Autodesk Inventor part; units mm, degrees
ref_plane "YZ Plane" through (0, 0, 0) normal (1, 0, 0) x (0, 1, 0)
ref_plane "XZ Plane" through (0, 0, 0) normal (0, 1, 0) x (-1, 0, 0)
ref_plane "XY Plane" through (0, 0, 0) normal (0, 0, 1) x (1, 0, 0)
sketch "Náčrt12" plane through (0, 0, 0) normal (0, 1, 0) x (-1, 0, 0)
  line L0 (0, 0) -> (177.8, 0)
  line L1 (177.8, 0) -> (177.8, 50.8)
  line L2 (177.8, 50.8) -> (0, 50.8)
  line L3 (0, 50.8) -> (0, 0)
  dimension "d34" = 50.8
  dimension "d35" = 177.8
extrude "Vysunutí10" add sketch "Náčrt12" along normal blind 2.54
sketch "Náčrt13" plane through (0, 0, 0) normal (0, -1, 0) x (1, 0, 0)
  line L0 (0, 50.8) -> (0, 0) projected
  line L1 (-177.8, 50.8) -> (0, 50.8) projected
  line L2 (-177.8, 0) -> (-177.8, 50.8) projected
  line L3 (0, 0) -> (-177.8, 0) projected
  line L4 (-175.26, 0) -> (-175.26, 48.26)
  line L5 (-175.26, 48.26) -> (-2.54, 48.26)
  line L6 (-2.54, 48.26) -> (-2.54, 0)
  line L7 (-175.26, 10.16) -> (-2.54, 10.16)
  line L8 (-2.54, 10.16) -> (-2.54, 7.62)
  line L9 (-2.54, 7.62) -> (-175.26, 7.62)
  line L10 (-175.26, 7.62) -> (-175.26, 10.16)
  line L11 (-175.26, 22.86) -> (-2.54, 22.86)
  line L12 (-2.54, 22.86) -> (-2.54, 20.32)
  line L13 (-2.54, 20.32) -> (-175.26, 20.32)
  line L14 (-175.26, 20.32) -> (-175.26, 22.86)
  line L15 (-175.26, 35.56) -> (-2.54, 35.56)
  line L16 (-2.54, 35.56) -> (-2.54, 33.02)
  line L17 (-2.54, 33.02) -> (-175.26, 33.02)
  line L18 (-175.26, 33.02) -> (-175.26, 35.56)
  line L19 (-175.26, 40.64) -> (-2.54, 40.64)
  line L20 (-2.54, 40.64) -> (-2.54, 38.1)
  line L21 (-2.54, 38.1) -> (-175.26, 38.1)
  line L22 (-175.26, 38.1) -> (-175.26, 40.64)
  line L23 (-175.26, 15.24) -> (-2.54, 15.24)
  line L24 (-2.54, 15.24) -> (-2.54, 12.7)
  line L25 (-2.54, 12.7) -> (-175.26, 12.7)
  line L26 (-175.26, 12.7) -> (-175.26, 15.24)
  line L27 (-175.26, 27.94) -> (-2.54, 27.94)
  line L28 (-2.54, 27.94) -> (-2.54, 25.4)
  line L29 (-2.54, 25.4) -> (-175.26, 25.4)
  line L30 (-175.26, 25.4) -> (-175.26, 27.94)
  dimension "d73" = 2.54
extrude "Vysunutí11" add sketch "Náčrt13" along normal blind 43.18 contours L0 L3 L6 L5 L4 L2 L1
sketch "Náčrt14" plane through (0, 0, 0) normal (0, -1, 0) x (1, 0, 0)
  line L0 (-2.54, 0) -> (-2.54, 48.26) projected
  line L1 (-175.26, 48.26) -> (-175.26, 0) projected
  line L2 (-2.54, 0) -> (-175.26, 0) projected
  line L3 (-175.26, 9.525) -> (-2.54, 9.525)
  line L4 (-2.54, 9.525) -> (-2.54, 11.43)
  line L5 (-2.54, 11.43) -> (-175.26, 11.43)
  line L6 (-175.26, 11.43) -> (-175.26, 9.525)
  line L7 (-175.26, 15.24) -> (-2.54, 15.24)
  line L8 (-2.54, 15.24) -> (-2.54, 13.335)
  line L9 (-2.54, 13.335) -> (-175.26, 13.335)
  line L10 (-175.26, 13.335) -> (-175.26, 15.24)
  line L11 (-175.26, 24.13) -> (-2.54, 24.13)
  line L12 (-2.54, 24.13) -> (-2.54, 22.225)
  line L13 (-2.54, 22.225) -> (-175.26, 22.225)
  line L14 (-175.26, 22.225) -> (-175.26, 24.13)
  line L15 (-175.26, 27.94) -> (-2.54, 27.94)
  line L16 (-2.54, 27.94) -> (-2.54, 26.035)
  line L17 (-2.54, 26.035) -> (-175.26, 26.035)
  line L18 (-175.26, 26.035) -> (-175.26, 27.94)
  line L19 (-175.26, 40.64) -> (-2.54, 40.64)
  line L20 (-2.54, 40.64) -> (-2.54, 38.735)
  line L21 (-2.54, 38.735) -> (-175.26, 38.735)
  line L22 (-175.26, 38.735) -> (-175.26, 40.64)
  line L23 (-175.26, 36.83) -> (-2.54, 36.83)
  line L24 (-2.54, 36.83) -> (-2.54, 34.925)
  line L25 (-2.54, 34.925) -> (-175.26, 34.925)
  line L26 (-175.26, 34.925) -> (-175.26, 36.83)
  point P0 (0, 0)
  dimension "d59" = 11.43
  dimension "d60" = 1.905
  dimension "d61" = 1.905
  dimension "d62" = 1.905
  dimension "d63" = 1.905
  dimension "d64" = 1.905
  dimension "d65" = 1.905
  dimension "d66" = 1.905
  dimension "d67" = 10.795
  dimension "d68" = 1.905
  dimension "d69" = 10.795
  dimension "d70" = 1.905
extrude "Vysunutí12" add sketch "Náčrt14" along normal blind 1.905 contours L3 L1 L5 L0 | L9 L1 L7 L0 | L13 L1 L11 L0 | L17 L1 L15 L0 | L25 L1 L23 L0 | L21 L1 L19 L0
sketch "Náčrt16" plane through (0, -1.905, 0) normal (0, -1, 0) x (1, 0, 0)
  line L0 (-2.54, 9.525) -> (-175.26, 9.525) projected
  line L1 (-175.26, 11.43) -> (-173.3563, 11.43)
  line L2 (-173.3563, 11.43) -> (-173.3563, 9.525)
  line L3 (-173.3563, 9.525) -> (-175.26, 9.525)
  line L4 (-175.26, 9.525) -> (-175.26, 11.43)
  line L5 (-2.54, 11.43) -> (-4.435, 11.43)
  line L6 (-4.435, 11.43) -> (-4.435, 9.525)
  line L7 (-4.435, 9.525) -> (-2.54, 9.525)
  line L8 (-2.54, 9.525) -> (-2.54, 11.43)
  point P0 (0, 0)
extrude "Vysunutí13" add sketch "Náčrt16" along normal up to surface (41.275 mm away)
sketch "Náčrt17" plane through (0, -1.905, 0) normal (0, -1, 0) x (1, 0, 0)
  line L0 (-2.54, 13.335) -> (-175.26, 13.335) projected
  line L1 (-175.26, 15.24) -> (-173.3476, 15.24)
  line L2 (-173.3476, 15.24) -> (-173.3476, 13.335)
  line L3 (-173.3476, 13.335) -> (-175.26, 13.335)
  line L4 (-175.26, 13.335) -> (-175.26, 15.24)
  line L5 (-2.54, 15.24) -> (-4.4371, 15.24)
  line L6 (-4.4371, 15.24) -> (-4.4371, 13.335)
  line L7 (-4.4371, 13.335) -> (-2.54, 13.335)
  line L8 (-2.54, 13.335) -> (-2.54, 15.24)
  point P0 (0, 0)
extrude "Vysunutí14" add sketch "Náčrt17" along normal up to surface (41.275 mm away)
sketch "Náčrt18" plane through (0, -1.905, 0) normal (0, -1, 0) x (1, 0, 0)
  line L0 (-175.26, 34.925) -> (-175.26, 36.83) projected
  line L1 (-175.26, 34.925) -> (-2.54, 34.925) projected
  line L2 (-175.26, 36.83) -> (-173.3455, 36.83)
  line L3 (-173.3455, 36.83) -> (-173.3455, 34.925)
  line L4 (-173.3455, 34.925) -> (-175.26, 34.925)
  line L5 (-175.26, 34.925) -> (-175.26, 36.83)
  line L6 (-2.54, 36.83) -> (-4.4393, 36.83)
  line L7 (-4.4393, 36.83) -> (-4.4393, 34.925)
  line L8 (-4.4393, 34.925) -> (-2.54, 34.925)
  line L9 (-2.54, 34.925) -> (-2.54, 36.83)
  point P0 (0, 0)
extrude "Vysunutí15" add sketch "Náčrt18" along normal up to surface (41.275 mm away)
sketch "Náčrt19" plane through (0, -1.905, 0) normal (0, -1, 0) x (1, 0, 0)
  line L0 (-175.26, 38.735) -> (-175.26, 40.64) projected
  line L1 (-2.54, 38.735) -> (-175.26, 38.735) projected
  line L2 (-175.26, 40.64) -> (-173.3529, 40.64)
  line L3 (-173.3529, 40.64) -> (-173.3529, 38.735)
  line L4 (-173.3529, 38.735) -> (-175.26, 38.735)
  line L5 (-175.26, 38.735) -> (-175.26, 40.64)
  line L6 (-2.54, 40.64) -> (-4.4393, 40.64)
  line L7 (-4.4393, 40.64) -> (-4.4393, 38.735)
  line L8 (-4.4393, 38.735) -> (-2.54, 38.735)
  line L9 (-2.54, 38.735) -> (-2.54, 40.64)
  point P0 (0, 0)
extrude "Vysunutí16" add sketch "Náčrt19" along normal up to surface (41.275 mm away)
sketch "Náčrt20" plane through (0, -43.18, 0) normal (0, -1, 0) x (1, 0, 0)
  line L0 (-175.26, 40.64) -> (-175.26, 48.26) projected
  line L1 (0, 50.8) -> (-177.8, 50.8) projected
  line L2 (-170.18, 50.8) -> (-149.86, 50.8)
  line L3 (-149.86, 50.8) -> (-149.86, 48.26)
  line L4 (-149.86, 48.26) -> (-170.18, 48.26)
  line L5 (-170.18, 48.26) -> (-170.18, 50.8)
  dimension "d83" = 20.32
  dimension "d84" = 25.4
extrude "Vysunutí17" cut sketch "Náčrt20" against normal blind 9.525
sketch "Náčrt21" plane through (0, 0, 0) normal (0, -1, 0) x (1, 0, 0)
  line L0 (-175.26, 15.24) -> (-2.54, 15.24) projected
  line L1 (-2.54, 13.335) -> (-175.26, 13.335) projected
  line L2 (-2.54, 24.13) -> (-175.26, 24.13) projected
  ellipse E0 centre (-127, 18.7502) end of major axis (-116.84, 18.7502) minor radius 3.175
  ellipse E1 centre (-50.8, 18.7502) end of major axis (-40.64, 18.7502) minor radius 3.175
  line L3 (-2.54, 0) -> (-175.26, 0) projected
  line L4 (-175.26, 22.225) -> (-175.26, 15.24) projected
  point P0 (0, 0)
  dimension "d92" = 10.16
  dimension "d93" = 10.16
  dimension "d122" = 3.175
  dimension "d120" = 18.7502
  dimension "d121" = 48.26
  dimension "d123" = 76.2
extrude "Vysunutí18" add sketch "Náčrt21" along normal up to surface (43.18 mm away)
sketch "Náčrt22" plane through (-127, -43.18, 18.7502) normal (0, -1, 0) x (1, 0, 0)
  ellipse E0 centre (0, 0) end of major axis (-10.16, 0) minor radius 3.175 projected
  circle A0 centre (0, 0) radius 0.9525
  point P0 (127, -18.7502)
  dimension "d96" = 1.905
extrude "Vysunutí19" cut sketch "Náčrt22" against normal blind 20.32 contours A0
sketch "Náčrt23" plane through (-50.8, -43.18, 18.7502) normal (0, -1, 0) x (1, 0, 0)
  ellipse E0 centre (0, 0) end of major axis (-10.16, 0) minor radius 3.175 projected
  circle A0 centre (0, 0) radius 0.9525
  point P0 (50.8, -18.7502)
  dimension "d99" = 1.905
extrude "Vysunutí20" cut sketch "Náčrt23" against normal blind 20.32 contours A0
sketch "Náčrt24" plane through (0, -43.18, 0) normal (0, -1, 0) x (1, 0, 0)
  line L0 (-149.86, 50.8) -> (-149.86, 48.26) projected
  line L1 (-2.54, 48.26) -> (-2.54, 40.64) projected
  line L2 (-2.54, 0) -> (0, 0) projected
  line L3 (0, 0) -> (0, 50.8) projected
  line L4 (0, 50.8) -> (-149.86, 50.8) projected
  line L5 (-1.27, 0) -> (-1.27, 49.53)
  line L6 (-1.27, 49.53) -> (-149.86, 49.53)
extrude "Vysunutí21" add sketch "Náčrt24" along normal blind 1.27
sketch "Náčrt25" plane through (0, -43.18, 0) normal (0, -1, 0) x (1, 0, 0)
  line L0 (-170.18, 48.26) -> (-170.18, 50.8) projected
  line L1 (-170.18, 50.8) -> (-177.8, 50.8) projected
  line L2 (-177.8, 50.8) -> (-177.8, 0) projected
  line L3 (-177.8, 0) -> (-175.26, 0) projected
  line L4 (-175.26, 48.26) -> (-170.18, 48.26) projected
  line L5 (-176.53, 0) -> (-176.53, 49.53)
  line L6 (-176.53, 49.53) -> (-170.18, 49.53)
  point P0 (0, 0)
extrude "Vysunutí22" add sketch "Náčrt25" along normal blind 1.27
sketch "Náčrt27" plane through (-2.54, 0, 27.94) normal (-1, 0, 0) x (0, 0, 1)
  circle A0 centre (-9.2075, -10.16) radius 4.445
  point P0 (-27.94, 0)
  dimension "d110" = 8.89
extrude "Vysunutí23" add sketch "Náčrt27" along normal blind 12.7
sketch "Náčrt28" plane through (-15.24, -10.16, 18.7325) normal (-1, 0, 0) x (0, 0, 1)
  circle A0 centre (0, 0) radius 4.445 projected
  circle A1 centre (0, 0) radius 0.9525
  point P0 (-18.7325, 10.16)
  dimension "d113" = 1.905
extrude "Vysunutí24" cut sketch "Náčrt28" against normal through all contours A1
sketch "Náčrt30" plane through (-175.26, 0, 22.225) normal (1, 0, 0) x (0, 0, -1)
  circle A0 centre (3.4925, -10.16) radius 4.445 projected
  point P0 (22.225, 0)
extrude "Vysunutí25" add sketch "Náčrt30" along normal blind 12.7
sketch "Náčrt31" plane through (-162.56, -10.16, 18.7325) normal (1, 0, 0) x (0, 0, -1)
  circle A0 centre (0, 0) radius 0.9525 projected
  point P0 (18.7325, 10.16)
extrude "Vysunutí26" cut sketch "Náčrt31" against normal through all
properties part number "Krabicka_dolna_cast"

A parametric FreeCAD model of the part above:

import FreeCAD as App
import Part
import Sketcher
Q = App.Units.Quantity


def add_polygon(sketch, points):
    """Adds a closed chain of lines whose ends are joined by coincident constraints."""
    first, n = sketch.GeometryCount, len(points)
    for a, b in zip(points, points[1:] + points[:1]):
        sketch.addGeometry(Part.LineSegment(App.Vector(*a, 0), App.Vector(*b, 0)), False)
    for i in range(n):
        sketch.addConstraint(Sketcher.Constraint("Coincident", first + i, 2, first + (i + 1) % n, 1))

doc = App.newDocument("Part")
body = doc.addObject("PartDesign::Body", "Body")

# Sketch on XZ plane
sketch1 = body.newObject("Sketcher::SketchObject", "Sketch")
sketch1.AttachmentSupport = (doc.getObject("XZ_Plane"), [""])
sketch1.MapMode = "FlatFace"
add_polygon(sketch1, [(0, 51), (0, 0), (-178, 0), (-178, 51)])  # lines 0-3
sketch1.addConstraint([
    Sketcher.Constraint("Vertical", 0),
    Sketcher.Constraint("Horizontal", 1),
    Sketcher.Constraint("Vertical", 2),
    Sketcher.Constraint("Horizontal", 3),
    Sketcher.Constraint("Coincident", 0, 2, -1, 1),
    Sketcher.Constraint("DistanceX", 1, 2, 1, 1, Q("7 in")),
    Sketcher.Constraint("DistanceY", 0, 2, 0, 1, Q("2 in")),
])
pad1 = body.newObject("PartDesign::Pad", "Pad")
pad1.Profile = sketch1
pad1.Length = Q("0.1 in")
pad1.Reversed = True

# Sketch on XZ plane
sketch2 = body.newObject("Sketcher::SketchObject", "Sketch001")
sketch2.AttachmentSupport = (doc.getObject("XZ_Plane"), [""])
sketch2.MapMode = "FlatFace"
add_polygon(sketch2, [(0, 0), (0, 50.8), (-177.8, 50.8), (-177.8, 0), (-175.3, 0), (-175.3, 48.3), (-2.5, 48.3), (-2.5, 0)])  # lines 0-7
sketch2.addConstraint([
    Sketcher.Constraint("Vertical", 0),
    Sketcher.Constraint("Horizontal", 1),
    Sketcher.Constraint("Vertical", 2),
    Sketcher.Constraint("Horizontal", 3),
    Sketcher.Constraint("Vertical", 4),
    Sketcher.Constraint("Horizontal", 5),
    Sketcher.Constraint("Vertical", 6),
    Sketcher.Constraint("Horizontal", 7),
    Sketcher.Constraint("Coincident", 7, 2, -1, 1),
    Sketcher.Constraint("PointOnObject", 2, 2, -1),
    Sketcher.Constraint("Equal", 3, 7),
    Sketcher.Constraint("DistanceX", 3, 1, 3, 2, Q("0.1 in")),
    Sketcher.Constraint("DistanceY", 4, 2, 1, 2, Q("0.1 in")),
    Sketcher.Constraint("DistanceX", 1, 2, 1, 1, Q("7 in")),
    Sketcher.Constraint("DistanceY", 0, 1, 0, 2, Q("2 in")),
])
pad2 = body.newObject("PartDesign::Pad", "Pad001")
pad2.Profile = sketch2
pad2.Length = Q("1.7 in")

# Sketch on XZ plane
sketch3 = body.newObject("Sketcher::SketchObject", "Sketch002")
sketch3.AttachmentSupport = (doc.getObject("XZ_Plane"), [""])
sketch3.MapMode = "FlatFace"
add_polygon(sketch3, [(-175.3, 9.5), (-2.5, 9.5), (-2.5, 11.4), (-175.3, 11.4)])  # lines 0-3
add_polygon(sketch3, [(-175.3, 13.3), (-2.5, 13.3), (-2.5, 15.2), (-175.3, 15.2)])  # lines 4-7
add_polygon(sketch3, [(-175.3, 22.2), (-2.5, 22.2), (-2.5, 24.1), (-175.3, 24.1)])  # lines 8-11
add_polygon(sketch3, [(-175.3, 26), (-2.5, 26), (-2.5, 27.9), (-175.3, 27.9)])  # lines 12-15
add_polygon(sketch3, [(-175.3, 34.9), (-2.5, 34.9), (-2.5, 36.8), (-175.3, 36.8)])  # lines 16-19
add_polygon(sketch3, [(-175.3, 38.7), (-2.5, 38.7), (-2.5, 40.6), (-175.3, 40.6)])  # lines 20-23
sketch3.addConstraint([
    Sketcher.Constraint("Horizontal", 0),
    Sketcher.Constraint("Vertical", 1),
    Sketcher.Constraint("Horizontal", 2),
    Sketcher.Constraint("Vertical", 3),
    Sketcher.Constraint("Horizontal", 4),
    Sketcher.Constraint("Vertical", 5),
    Sketcher.Constraint("Horizontal", 6),
    Sketcher.Constraint("Vertical", 7),
    Sketcher.Constraint("Horizontal", 8),
    Sketcher.Constraint("Vertical", 9),
    Sketcher.Constraint("Horizontal", 10),
    Sketcher.Constraint("Vertical", 11),
    Sketcher.Constraint("Horizontal", 12),
    Sketcher.Constraint("Vertical", 13),
    Sketcher.Constraint("Horizontal", 14),
    Sketcher.Constraint("Vertical", 15),
    Sketcher.Constraint("Horizontal", 16),
    Sketcher.Constraint("Vertical", 17),
    Sketcher.Constraint("Horizontal", 18),
    Sketcher.Constraint("Vertical", 19),
    Sketcher.Constraint("Horizontal", 20),
    Sketcher.Constraint("Vertical", 21),
    Sketcher.Constraint("Horizontal", 22),
    Sketcher.Constraint("Vertical", 23),
    Sketcher.Constraint("Vertical", 1, 2, 4, 2),
    Sketcher.Constraint("Vertical", 3, 2, 6, 2),
    Sketcher.Constraint("Vertical", 5, 2, 8, 2),
    Sketcher.Constraint("Vertical", 7, 2, 10, 2),
    Sketcher.Constraint("Vertical", 9, 2, 12, 2),
    Sketcher.Constraint("Vertical", 11, 2, 14, 2),
    Sketcher.Constraint("Vertical", 13, 2, 16, 2),
    Sketcher.Constraint("Vertical", 15, 2, 18, 2),
    Sketcher.Constraint("Vertical", 17, 2, 20, 2),
    Sketcher.Constraint("Vertical", 19, 2, 22, 2),
    Sketcher.Constraint("Equal", 3, 5),
    Sketcher.Constraint("Equal", 7, 9),
    Sketcher.Constraint("Equal", 11, 13),
    Sketcher.Constraint("Equal", 15, 17),
    Sketcher.Constraint("Equal", 19, 21),
    Sketcher.Constraint("DistanceY", 1, 1, 1, 2, Q("0.075 in")),
    Sketcher.Constraint("DistanceY", -1, 1, 1, 2, Q("0.45 in")),
    Sketcher.Constraint("DistanceX", 0, 1, 0, 2, Q("6.8 in")),
    Sketcher.Constraint("DistanceY", 1, 2, 4, 2, Q("0.075 in")),
    Sketcher.Constraint("DistanceY", 1, 2, 8, 2, Q("0.425 in")),
    Sketcher.Constraint("DistanceY", 9, 2, 12, 2, Q("0.075 in")),
    Sketcher.Constraint("DistanceY", 9, 2, 16, 2, Q("0.425 in")),
    Sketcher.Constraint("DistanceY", 17, 2, 20, 2, Q("0.075 in")),
    Sketcher.Constraint("DistanceX", 0, 2, -1, 1, Q("0.1 in")),
])
pad3 = body.newObject("PartDesign::Pad", "Pad002")
pad3.Profile = sketch3
pad3.Length = Q("0.075 in")

# Sketch on XZ plane
sketch4 = body.newObject("Sketcher::SketchObject", "Sketch003")
sketch4.AttachmentSupport = (doc.getObject("XZ_Plane"), [""])
sketch4.MapMode = "FlatFace"
sketch4.AttachmentOffset = App.Placement(App.Vector(0, 0, 0.075 * 25.4), App.Rotation())
add_polygon(sketch4, [(-175.3, 9.5), (-173.4, 9.5), (-173.4, 11.4), (-175.3, 11.4)])  # lines 0-3
add_polygon(sketch4, [(-4.4, 9.5), (-2.5, 9.5), (-2.5, 11.4), (-4.4, 11.4)])  # lines 4-7
sketch4.addConstraint([
    Sketcher.Constraint("Horizontal", 0),
    Sketcher.Constraint("Vertical", 1),
    Sketcher.Constraint("Horizontal", 2),
    Sketcher.Constraint("Vertical", 3),
    Sketcher.Constraint("Horizontal", 4),
    Sketcher.Constraint("Vertical", 5),
    Sketcher.Constraint("Horizontal", 6),
    Sketcher.Constraint("Vertical", 7),
    Sketcher.Constraint("Horizontal", 3, 2, 4, 2),
    Sketcher.Constraint("Horizontal", 2, 2, 5, 2),
    Sketcher.Constraint("DistanceX", 2, 2, -1, 1, Q("6.9 in")),
    Sketcher.Constraint("DistanceX", 4, 2, -1, 1, Q("0.1 in")),
    Sketcher.Constraint("DistanceY", 1, 1, 1, 2, Q("0.075 in")),
    Sketcher.Constraint("DistanceY", -1, 1, 1, 2, Q("0.45 in")),
    Sketcher.Constraint("DistanceX", 4, 1, 4, 2, Q("0.0746 in")),
    Sketcher.Constraint("DistanceX", 0, 1, 0, 2, 1.9037),
])
pad4 = body.newObject("PartDesign::Pad", "Pad003")
pad4.Profile = sketch4
pad4.Length = Q("1.625 in")

# Sketch on XZ plane
sketch5 = body.newObject("Sketcher::SketchObject", "Sketch004")
sketch5.AttachmentSupport = (doc.getObject("XZ_Plane"), [""])
sketch5.MapMode = "FlatFace"
sketch5.AttachmentOffset = App.Placement(App.Vector(0, 0, 0.075 * 25.4), App.Rotation())
add_polygon(sketch5, [(-175.3, 13.3), (-173.3, 13.3), (-173.3, 15.2), (-175.3, 15.2)])  # lines 0-3
add_polygon(sketch5, [(-4.4, 13.3), (-2.5, 13.3), (-2.5, 15.2), (-4.4, 15.2)])  # lines 4-7
sketch5.addConstraint([
    Sketcher.Constraint("Horizontal", 0),
    Sketcher.Constraint("Vertical", 1),
    Sketcher.Constraint("Horizontal", 2),
    Sketcher.Constraint("Vertical", 3),
    Sketcher.Constraint("Horizontal", 4),
    Sketcher.Constraint("Vertical", 5),
    Sketcher.Constraint("Horizontal", 6),
    Sketcher.Constraint("Vertical", 7),
    Sketcher.Constraint("Horizontal", 3, 2, 4, 2),
    Sketcher.Constraint("Horizontal", 2, 2, 5, 2),
    Sketcher.Constraint("DistanceY", -1, 1, 1, 2, Q("0.6 in")),
    Sketcher.Constraint("DistanceX", 2, 2, -1, 1, Q("6.9 in")),
    Sketcher.Constraint("DistanceX", 4, 2, -1, 1, Q("0.1 in")),
    Sketcher.Constraint("DistanceY", 1, 1, 1, 2, Q("0.075 in")),
    Sketcher.Constraint("DistanceX", 0, 1, 0, 2, Q("0.0753 in")),
    Sketcher.Constraint("DistanceX", 4, 1, 4, 2, Q("0.0747 in")),
])
pad5 = body.newObject("PartDesign::Pad", "Pad004")
pad5.Profile = sketch5
pad5.Length = Q("1.625 in")

# Sketch on XZ plane
sketch6 = body.newObject("Sketcher::SketchObject", "Sketch005")
sketch6.AttachmentSupport = (doc.getObject("XZ_Plane"), [""])
sketch6.MapMode = "FlatFace"
sketch6.AttachmentOffset = App.Placement(App.Vector(0, 0, 0.075 * 25.4), App.Rotation())
add_polygon(sketch6, [(-4.4, 36.8), (-4.4, 34.9), (-2.5, 34.9), (-2.5, 36.8)])  # lines 0-3
add_polygon(sketch6, [(-175.3, 36.8), (-175.3, 34.9), (-173.3, 34.9), (-173.3, 36.8)])  # lines 4-7
sketch6.addConstraint([
    Sketcher.Constraint("Vertical", 0),
    Sketcher.Constraint("Horizontal", 1),
    Sketcher.Constraint("Vertical", 2),
    Sketcher.Constraint("Horizontal", 3),
    Sketcher.Constraint("Vertical", 4),
    Sketcher.Constraint("Horizontal", 5),
    Sketcher.Constraint("Vertical", 6),
    Sketcher.Constraint("Horizontal", 7),
    Sketcher.Constraint("Horizontal", 1, 2, 4, 2),
    Sketcher.Constraint("Horizontal", 3, 2, 6, 2),
    Sketcher.Constraint("DistanceX", 1, 2, -1, 1, Q("0.1 in")),
    Sketcher.Constraint("DistanceX", 4, 2, -1, 1, Q("6.9 in")),
    Sketcher.Constraint("DistanceY", 0, 2, 0, 1, Q("0.075 in")),
    Sketcher.Constraint("DistanceY", -1, 1, 2, 2, Q("1.45 in")),
    Sketcher.Constraint("DistanceX", 1, 1, 1, 2, 1.8993),
    Sketcher.Constraint("DistanceX", 5, 1, 5, 2, 1.9145),
])
pad6 = body.newObject("PartDesign::Pad", "Pad005")
pad6.Profile = sketch6
pad6.Length = Q("1.625 in")

# Sketch on XZ plane
sketch7 = body.newObject("Sketcher::SketchObject", "Sketch006")
sketch7.AttachmentSupport = (doc.getObject("XZ_Plane"), [""])
sketch7.MapMode = "FlatFace"
sketch7.AttachmentOffset = App.Placement(App.Vector(0, 0, 0.075 * 25.4), App.Rotation())
add_polygon(sketch7, [(-4.4, 40.6), (-4.4, 38.7), (-2.5, 38.7), (-2.5, 40.6)])  # lines 0-3
add_polygon(sketch7, [(-175.3, 40.6), (-175.3, 38.7), (-173.4, 38.7), (-173.4, 40.6)])  # lines 4-7
sketch7.addConstraint([
    Sketcher.Constraint("Vertical", 0),
    Sketcher.Constraint("Horizontal", 1),
    Sketcher.Constraint("Vertical", 2),
    Sketcher.Constraint("Horizontal", 3),
    Sketcher.Constraint("Vertical", 4),
    Sketcher.Constraint("Horizontal", 5),
    Sketcher.Constraint("Vertical", 6),
    Sketcher.Constraint("Horizontal", 7),
    Sketcher.Constraint("Horizontal", 1, 2, 4, 2),
    Sketcher.Constraint("Horizontal", 3, 2, 6, 2),
    Sketcher.Constraint("DistanceX", 1, 2, -1, 1, Q("0.1 in")),
    Sketcher.Constraint("DistanceY", -1, 1, 2, 2, Q("1.6 in")),
    Sketcher.Constraint("DistanceX", 4, 2, -1, 1, Q("6.9 in")),
    Sketcher.Constraint("DistanceY", 0, 2, 0, 1, Q("0.075 in")),
    Sketcher.Constraint("DistanceX", 1, 1, 1, 2, 1.8993),
    Sketcher.Constraint("DistanceX", 5, 1, 5, 2, 1.907),
])
pad7 = body.newObject("PartDesign::Pad", "Pad006")
pad7.Profile = sketch7
pad7.Length = Q("1.625 in")

# Sketch on XZ plane
sketch8 = body.newObject("Sketcher::SketchObject", "Sketch007")
sketch8.AttachmentSupport = (doc.getObject("XZ_Plane"), [""])
sketch8.MapMode = "FlatFace"
sketch8.AttachmentOffset = App.Placement(App.Vector(0, 0, 1.7 * 25.4), App.Rotation())
add_polygon(sketch8, [(-149.9, 48.3), (-149.9, 50.8), (-170.2, 50.8), (-170.2, 48.3)])  # lines 0-3
sketch8.addConstraint([
    Sketcher.Constraint("Vertical", 0),
    Sketcher.Constraint("Horizontal", 1),
    Sketcher.Constraint("Vertical", 2),
    Sketcher.Constraint("Horizontal", 3),
    Sketcher.Constraint("DistanceX", 1, 2, 1, 1, Q("0.8 in")),
    Sketcher.Constraint("DistanceY", 0, 1, 0, 2, Q("0.1 in")),
    Sketcher.Constraint("DistanceY", -1, 1, 0, 2, Q("2 in")),
    Sketcher.Constraint("DistanceX", 0, 2, -1, 1, Q("5.9 in")),
])
pocket1 = body.newObject("PartDesign::Pocket", "Pocket")
pocket1.Profile = sketch8
pocket1.Length = Q("0.375 in")

# Sketch on XZ plane
sketch9 = body.newObject("Sketcher::SketchObject", "Sketch008")
sketch9.AttachmentSupport = (doc.getObject("XZ_Plane"), [""])
sketch9.MapMode = "FlatFace"
sketch9.addGeometry([
    Part.Ellipse(App.Vector(-116.84, 18.7502, 0), App.Vector(-127, 21.9252, 0), App.Vector(-127, 18.7502, 0)),
    Part.Ellipse(App.Vector(-40.64, 18.7502, 0), App.Vector(-50.8, 21.9252, 0), App.Vector(-50.8, 18.7502, 0)),
], False)
sketch9.addConstraint([
    Sketcher.Constraint("Block", 0),
    Sketcher.Constraint("Block", 1),
])
pad8 = body.newObject("PartDesign::Pad", "Pad007")
pad8.Profile = sketch9
pad8.Length = Q("1.7 in")

# Sketch on XZ plane
sketch10 = body.newObject("Sketcher::SketchObject", "Sketch009")
sketch10.AttachmentSupport = (doc.getObject("XZ_Plane"), [""])
sketch10.MapMode = "FlatFace"
sketch10.AttachmentOffset = App.Placement(App.Vector(0, 0, 1.7 * 25.4), App.Rotation())
sketch10.addGeometry(Part.Circle(App.Vector(-127, 18.8, 0), App.Vector(0, 0, 1), 1), False)
sketch10.addConstraint([
    Sketcher.Constraint("Diameter", 0, Q("0.075 in")),
    Sketcher.Constraint("DistanceX", 0, 3, -1, 1, Q("5 in")),
    Sketcher.Constraint("DistanceY", -1, 1, 0, 3, Q("0.7382 in")),
])
pocket2 = body.newObject("PartDesign::Pocket", "Pocket001")
pocket2.Profile = sketch10
pocket2.Length = Q("0.8 in")

# Sketch on XZ plane
sketch11 = body.newObject("Sketcher::SketchObject", "Sketch010")
sketch11.AttachmentSupport = (doc.getObject("XZ_Plane"), [""])
sketch11.MapMode = "FlatFace"
sketch11.AttachmentOffset = App.Placement(App.Vector(0, 0, 1.7 * 25.4), App.Rotation())
sketch11.addGeometry(Part.Circle(App.Vector(-50.8, 18.8, 0), App.Vector(0, 0, 1), 1), False)
sketch11.addConstraint([
    Sketcher.Constraint("Diameter", 0, Q("0.075 in")),
    Sketcher.Constraint("DistanceX", 0, 3, -1, 1, Q("2 in")),
    Sketcher.Constraint("DistanceY", -1, 1, 0, 3, Q("0.7382 in")),
])
pocket3 = body.newObject("PartDesign::Pocket", "Pocket002")
pocket3.Profile = sketch11
pocket3.Length = Q("0.8 in")

# Sketch on XZ plane
sketch12 = body.newObject("Sketcher::SketchObject", "Sketch011")
sketch12.AttachmentSupport = (doc.getObject("XZ_Plane"), [""])
sketch12.MapMode = "FlatFace"
sketch12.AttachmentOffset = App.Placement(App.Vector(0, 0, 1.7 * 25.4), App.Rotation())
add_polygon(sketch12, [(0, 50.8), (-149.9, 50.8), (-149.9, 49.5), (-1.3, 49.5), (-1.3, 0), (0, 0)])  # lines 0-5
sketch12.addConstraint([
    Sketcher.Constraint("Horizontal", 0),
    Sketcher.Constraint("Vertical", 1),
    Sketcher.Constraint("Horizontal", 2),
    Sketcher.Constraint("Vertical", 3),
    Sketcher.Constraint("Horizontal", 4),
    Sketcher.Constraint("Vertical", 5),
    Sketcher.Constraint("Coincident", 4, 2, -1, 1),
    Sketcher.Constraint("Equal", 4, 1),
    Sketcher.Constraint("DistanceY", 5, 1, 5, 2, Q("2 in")),
    Sketcher.Constraint("DistanceX", 0, 2, 0, 1, Q("5.9 in")),
    Sketcher.Constraint("DistanceX", 2, 1, 2, 2, Q("5.85 in")),
])
pad9 = body.newObject("PartDesign::Pad", "Pad008")
pad9.Profile = sketch12
pad9.Length = Q("0.05 in")

# Sketch on XZ plane
sketch13 = body.newObject("Sketcher::SketchObject", "Sketch012")
sketch13.AttachmentSupport = (doc.getObject("XZ_Plane"), [""])
sketch13.MapMode = "FlatFace"
sketch13.AttachmentOffset = App.Placement(App.Vector(0, 0, 1.7 * 25.4), App.Rotation())
add_polygon(sketch13, [(-176.5, 49.5), (-170.2, 49.5), (-170.2, 50.8), (-177.8, 50.8), (-177.8, 0), (-176.5, 0)])  # lines 0-5
sketch13.addConstraint([
    Sketcher.Constraint("Horizontal", 0),
    Sketcher.Constraint("Vertical", 1),
    Sketcher.Constraint("Horizontal", 2),
    Sketcher.Constraint("Vertical", 3),
    Sketcher.Constraint("Horizontal", 4),
    Sketcher.Constraint("Vertical", 5),
    Sketcher.Constraint("PointOnObject", 3, 2, -1),
    Sketcher.Constraint("Equal", 4, 1),
    Sketcher.Constraint("DistanceY", 3, 2, 3, 1, Q("2 in")),
    Sketcher.Constraint("DistanceX", 2, 2, 2, 1, Q("0.3 in")),
    Sketcher.Constraint("DistanceX", 2, 2, -1, 1, Q("7 in")),
    Sketcher.Constraint("DistanceX", 0, 1, 0, 2, Q("0.25 in")),
])
pad10 = body.newObject("PartDesign::Pad", "Pad009")
pad10.Profile = sketch13
pad10.Length = Q("0.05 in")

# Sketch on YZ plane
sketch14 = body.newObject("Sketcher::SketchObject", "Sketch013")
sketch14.AttachmentSupport = (doc.getObject("YZ_Plane"), [""])
sketch14.MapMode = "FlatFace"
sketch14.AttachmentOffset = App.Placement(App.Vector(0, 0, -0.1 * 25.4), App.Rotation())
sketch14.addGeometry(Part.Circle(App.Vector(-10.2, 18.7, 0), App.Vector(0, 0, 1), 4.4), False)
sketch14.addConstraint([
    Sketcher.Constraint("Diameter", 0, Q("0.35 in")),
    Sketcher.Constraint("DistanceX", 0, 3, -1, 1, Q("0.4 in")),
    Sketcher.Constraint("DistanceY", -1, 1, 0, 3, Q("0.7375 in")),
])
pad11 = body.newObject("PartDesign::Pad", "Pad010")
pad11.Profile = sketch14
pad11.Length = Q("0.5 in")
pad11.Reversed = True

# Sketch on YZ plane
sketch15 = body.newObject("Sketcher::SketchObject", "Sketch014")
sketch15.AttachmentSupport = (doc.getObject("YZ_Plane"), [""])
sketch15.MapMode = "FlatFace"
sketch15.AttachmentOffset = App.Placement(App.Vector(0, 0, -0.6 * 25.4), App.Rotation())
sketch15.addGeometry(Part.Circle(App.Vector(-10.2, 18.7, 0), App.Vector(0, 0, 1), 1), False)
sketch15.addConstraint([
    Sketcher.Constraint("Diameter", 0, Q("0.075 in")),
    Sketcher.Constraint("DistanceX", 0, 3, -1, 1, Q("0.4 in")),
    Sketcher.Constraint("DistanceY", -1, 1, 0, 3, Q("0.7375 in")),
])
pocket4 = body.newObject("PartDesign::Pocket", "Pocket003")
pocket4.Profile = sketch15
pocket4.Type = "ThroughAll"
pocket4.Reversed = True

# Sketch on YZ plane
sketch16 = body.newObject("Sketcher::SketchObject", "Sketch015")
sketch16.AttachmentSupport = (doc.getObject("YZ_Plane"), [""])
sketch16.MapMode = "FlatFace"
sketch16.AttachmentOffset = App.Placement(App.Vector(0, 0, -6.9 * 25.4), App.Rotation())
sketch16.addGeometry(Part.Circle(App.Vector(-10.2, 18.7, 0), App.Vector(0, 0, 1), 4.4), False)
sketch16.addConstraint([
    Sketcher.Constraint("Diameter", 0, Q("0.35 in")),
    Sketcher.Constraint("DistanceX", 0, 3, -1, 1, Q("0.4 in")),
    Sketcher.Constraint("DistanceY", -1, 1, 0, 3, Q("0.7375 in")),
])
pad12 = body.newObject("PartDesign::Pad", "Pad011")
pad12.Profile = sketch16
pad12.Length = Q("0.5 in")

# Sketch on YZ plane
sketch17 = body.newObject("Sketcher::SketchObject", "Sketch016")
sketch17.AttachmentSupport = (doc.getObject("YZ_Plane"), [""])
sketch17.MapMode = "FlatFace"
sketch17.AttachmentOffset = App.Placement(App.Vector(0, 0, -6.4 * 25.4), App.Rotation())
sketch17.addGeometry(Part.Circle(App.Vector(-10.2, 18.7, 0), App.Vector(0, 0, 1), 1), False)
sketch17.addConstraint([
    Sketcher.Constraint("Diameter", 0, Q("0.075 in")),
    Sketcher.Constraint("DistanceX", 0, 3, -1, 1, Q("0.4 in")),
    Sketcher.Constraint("DistanceY", -1, 1, 0, 3, Q("0.7375 in")),
])
pocket5 = body.newObject("PartDesign::Pocket", "Pocket004")
pocket5.Profile = sketch17
pocket5.Type = "ThroughAll"

doc.recompute()
